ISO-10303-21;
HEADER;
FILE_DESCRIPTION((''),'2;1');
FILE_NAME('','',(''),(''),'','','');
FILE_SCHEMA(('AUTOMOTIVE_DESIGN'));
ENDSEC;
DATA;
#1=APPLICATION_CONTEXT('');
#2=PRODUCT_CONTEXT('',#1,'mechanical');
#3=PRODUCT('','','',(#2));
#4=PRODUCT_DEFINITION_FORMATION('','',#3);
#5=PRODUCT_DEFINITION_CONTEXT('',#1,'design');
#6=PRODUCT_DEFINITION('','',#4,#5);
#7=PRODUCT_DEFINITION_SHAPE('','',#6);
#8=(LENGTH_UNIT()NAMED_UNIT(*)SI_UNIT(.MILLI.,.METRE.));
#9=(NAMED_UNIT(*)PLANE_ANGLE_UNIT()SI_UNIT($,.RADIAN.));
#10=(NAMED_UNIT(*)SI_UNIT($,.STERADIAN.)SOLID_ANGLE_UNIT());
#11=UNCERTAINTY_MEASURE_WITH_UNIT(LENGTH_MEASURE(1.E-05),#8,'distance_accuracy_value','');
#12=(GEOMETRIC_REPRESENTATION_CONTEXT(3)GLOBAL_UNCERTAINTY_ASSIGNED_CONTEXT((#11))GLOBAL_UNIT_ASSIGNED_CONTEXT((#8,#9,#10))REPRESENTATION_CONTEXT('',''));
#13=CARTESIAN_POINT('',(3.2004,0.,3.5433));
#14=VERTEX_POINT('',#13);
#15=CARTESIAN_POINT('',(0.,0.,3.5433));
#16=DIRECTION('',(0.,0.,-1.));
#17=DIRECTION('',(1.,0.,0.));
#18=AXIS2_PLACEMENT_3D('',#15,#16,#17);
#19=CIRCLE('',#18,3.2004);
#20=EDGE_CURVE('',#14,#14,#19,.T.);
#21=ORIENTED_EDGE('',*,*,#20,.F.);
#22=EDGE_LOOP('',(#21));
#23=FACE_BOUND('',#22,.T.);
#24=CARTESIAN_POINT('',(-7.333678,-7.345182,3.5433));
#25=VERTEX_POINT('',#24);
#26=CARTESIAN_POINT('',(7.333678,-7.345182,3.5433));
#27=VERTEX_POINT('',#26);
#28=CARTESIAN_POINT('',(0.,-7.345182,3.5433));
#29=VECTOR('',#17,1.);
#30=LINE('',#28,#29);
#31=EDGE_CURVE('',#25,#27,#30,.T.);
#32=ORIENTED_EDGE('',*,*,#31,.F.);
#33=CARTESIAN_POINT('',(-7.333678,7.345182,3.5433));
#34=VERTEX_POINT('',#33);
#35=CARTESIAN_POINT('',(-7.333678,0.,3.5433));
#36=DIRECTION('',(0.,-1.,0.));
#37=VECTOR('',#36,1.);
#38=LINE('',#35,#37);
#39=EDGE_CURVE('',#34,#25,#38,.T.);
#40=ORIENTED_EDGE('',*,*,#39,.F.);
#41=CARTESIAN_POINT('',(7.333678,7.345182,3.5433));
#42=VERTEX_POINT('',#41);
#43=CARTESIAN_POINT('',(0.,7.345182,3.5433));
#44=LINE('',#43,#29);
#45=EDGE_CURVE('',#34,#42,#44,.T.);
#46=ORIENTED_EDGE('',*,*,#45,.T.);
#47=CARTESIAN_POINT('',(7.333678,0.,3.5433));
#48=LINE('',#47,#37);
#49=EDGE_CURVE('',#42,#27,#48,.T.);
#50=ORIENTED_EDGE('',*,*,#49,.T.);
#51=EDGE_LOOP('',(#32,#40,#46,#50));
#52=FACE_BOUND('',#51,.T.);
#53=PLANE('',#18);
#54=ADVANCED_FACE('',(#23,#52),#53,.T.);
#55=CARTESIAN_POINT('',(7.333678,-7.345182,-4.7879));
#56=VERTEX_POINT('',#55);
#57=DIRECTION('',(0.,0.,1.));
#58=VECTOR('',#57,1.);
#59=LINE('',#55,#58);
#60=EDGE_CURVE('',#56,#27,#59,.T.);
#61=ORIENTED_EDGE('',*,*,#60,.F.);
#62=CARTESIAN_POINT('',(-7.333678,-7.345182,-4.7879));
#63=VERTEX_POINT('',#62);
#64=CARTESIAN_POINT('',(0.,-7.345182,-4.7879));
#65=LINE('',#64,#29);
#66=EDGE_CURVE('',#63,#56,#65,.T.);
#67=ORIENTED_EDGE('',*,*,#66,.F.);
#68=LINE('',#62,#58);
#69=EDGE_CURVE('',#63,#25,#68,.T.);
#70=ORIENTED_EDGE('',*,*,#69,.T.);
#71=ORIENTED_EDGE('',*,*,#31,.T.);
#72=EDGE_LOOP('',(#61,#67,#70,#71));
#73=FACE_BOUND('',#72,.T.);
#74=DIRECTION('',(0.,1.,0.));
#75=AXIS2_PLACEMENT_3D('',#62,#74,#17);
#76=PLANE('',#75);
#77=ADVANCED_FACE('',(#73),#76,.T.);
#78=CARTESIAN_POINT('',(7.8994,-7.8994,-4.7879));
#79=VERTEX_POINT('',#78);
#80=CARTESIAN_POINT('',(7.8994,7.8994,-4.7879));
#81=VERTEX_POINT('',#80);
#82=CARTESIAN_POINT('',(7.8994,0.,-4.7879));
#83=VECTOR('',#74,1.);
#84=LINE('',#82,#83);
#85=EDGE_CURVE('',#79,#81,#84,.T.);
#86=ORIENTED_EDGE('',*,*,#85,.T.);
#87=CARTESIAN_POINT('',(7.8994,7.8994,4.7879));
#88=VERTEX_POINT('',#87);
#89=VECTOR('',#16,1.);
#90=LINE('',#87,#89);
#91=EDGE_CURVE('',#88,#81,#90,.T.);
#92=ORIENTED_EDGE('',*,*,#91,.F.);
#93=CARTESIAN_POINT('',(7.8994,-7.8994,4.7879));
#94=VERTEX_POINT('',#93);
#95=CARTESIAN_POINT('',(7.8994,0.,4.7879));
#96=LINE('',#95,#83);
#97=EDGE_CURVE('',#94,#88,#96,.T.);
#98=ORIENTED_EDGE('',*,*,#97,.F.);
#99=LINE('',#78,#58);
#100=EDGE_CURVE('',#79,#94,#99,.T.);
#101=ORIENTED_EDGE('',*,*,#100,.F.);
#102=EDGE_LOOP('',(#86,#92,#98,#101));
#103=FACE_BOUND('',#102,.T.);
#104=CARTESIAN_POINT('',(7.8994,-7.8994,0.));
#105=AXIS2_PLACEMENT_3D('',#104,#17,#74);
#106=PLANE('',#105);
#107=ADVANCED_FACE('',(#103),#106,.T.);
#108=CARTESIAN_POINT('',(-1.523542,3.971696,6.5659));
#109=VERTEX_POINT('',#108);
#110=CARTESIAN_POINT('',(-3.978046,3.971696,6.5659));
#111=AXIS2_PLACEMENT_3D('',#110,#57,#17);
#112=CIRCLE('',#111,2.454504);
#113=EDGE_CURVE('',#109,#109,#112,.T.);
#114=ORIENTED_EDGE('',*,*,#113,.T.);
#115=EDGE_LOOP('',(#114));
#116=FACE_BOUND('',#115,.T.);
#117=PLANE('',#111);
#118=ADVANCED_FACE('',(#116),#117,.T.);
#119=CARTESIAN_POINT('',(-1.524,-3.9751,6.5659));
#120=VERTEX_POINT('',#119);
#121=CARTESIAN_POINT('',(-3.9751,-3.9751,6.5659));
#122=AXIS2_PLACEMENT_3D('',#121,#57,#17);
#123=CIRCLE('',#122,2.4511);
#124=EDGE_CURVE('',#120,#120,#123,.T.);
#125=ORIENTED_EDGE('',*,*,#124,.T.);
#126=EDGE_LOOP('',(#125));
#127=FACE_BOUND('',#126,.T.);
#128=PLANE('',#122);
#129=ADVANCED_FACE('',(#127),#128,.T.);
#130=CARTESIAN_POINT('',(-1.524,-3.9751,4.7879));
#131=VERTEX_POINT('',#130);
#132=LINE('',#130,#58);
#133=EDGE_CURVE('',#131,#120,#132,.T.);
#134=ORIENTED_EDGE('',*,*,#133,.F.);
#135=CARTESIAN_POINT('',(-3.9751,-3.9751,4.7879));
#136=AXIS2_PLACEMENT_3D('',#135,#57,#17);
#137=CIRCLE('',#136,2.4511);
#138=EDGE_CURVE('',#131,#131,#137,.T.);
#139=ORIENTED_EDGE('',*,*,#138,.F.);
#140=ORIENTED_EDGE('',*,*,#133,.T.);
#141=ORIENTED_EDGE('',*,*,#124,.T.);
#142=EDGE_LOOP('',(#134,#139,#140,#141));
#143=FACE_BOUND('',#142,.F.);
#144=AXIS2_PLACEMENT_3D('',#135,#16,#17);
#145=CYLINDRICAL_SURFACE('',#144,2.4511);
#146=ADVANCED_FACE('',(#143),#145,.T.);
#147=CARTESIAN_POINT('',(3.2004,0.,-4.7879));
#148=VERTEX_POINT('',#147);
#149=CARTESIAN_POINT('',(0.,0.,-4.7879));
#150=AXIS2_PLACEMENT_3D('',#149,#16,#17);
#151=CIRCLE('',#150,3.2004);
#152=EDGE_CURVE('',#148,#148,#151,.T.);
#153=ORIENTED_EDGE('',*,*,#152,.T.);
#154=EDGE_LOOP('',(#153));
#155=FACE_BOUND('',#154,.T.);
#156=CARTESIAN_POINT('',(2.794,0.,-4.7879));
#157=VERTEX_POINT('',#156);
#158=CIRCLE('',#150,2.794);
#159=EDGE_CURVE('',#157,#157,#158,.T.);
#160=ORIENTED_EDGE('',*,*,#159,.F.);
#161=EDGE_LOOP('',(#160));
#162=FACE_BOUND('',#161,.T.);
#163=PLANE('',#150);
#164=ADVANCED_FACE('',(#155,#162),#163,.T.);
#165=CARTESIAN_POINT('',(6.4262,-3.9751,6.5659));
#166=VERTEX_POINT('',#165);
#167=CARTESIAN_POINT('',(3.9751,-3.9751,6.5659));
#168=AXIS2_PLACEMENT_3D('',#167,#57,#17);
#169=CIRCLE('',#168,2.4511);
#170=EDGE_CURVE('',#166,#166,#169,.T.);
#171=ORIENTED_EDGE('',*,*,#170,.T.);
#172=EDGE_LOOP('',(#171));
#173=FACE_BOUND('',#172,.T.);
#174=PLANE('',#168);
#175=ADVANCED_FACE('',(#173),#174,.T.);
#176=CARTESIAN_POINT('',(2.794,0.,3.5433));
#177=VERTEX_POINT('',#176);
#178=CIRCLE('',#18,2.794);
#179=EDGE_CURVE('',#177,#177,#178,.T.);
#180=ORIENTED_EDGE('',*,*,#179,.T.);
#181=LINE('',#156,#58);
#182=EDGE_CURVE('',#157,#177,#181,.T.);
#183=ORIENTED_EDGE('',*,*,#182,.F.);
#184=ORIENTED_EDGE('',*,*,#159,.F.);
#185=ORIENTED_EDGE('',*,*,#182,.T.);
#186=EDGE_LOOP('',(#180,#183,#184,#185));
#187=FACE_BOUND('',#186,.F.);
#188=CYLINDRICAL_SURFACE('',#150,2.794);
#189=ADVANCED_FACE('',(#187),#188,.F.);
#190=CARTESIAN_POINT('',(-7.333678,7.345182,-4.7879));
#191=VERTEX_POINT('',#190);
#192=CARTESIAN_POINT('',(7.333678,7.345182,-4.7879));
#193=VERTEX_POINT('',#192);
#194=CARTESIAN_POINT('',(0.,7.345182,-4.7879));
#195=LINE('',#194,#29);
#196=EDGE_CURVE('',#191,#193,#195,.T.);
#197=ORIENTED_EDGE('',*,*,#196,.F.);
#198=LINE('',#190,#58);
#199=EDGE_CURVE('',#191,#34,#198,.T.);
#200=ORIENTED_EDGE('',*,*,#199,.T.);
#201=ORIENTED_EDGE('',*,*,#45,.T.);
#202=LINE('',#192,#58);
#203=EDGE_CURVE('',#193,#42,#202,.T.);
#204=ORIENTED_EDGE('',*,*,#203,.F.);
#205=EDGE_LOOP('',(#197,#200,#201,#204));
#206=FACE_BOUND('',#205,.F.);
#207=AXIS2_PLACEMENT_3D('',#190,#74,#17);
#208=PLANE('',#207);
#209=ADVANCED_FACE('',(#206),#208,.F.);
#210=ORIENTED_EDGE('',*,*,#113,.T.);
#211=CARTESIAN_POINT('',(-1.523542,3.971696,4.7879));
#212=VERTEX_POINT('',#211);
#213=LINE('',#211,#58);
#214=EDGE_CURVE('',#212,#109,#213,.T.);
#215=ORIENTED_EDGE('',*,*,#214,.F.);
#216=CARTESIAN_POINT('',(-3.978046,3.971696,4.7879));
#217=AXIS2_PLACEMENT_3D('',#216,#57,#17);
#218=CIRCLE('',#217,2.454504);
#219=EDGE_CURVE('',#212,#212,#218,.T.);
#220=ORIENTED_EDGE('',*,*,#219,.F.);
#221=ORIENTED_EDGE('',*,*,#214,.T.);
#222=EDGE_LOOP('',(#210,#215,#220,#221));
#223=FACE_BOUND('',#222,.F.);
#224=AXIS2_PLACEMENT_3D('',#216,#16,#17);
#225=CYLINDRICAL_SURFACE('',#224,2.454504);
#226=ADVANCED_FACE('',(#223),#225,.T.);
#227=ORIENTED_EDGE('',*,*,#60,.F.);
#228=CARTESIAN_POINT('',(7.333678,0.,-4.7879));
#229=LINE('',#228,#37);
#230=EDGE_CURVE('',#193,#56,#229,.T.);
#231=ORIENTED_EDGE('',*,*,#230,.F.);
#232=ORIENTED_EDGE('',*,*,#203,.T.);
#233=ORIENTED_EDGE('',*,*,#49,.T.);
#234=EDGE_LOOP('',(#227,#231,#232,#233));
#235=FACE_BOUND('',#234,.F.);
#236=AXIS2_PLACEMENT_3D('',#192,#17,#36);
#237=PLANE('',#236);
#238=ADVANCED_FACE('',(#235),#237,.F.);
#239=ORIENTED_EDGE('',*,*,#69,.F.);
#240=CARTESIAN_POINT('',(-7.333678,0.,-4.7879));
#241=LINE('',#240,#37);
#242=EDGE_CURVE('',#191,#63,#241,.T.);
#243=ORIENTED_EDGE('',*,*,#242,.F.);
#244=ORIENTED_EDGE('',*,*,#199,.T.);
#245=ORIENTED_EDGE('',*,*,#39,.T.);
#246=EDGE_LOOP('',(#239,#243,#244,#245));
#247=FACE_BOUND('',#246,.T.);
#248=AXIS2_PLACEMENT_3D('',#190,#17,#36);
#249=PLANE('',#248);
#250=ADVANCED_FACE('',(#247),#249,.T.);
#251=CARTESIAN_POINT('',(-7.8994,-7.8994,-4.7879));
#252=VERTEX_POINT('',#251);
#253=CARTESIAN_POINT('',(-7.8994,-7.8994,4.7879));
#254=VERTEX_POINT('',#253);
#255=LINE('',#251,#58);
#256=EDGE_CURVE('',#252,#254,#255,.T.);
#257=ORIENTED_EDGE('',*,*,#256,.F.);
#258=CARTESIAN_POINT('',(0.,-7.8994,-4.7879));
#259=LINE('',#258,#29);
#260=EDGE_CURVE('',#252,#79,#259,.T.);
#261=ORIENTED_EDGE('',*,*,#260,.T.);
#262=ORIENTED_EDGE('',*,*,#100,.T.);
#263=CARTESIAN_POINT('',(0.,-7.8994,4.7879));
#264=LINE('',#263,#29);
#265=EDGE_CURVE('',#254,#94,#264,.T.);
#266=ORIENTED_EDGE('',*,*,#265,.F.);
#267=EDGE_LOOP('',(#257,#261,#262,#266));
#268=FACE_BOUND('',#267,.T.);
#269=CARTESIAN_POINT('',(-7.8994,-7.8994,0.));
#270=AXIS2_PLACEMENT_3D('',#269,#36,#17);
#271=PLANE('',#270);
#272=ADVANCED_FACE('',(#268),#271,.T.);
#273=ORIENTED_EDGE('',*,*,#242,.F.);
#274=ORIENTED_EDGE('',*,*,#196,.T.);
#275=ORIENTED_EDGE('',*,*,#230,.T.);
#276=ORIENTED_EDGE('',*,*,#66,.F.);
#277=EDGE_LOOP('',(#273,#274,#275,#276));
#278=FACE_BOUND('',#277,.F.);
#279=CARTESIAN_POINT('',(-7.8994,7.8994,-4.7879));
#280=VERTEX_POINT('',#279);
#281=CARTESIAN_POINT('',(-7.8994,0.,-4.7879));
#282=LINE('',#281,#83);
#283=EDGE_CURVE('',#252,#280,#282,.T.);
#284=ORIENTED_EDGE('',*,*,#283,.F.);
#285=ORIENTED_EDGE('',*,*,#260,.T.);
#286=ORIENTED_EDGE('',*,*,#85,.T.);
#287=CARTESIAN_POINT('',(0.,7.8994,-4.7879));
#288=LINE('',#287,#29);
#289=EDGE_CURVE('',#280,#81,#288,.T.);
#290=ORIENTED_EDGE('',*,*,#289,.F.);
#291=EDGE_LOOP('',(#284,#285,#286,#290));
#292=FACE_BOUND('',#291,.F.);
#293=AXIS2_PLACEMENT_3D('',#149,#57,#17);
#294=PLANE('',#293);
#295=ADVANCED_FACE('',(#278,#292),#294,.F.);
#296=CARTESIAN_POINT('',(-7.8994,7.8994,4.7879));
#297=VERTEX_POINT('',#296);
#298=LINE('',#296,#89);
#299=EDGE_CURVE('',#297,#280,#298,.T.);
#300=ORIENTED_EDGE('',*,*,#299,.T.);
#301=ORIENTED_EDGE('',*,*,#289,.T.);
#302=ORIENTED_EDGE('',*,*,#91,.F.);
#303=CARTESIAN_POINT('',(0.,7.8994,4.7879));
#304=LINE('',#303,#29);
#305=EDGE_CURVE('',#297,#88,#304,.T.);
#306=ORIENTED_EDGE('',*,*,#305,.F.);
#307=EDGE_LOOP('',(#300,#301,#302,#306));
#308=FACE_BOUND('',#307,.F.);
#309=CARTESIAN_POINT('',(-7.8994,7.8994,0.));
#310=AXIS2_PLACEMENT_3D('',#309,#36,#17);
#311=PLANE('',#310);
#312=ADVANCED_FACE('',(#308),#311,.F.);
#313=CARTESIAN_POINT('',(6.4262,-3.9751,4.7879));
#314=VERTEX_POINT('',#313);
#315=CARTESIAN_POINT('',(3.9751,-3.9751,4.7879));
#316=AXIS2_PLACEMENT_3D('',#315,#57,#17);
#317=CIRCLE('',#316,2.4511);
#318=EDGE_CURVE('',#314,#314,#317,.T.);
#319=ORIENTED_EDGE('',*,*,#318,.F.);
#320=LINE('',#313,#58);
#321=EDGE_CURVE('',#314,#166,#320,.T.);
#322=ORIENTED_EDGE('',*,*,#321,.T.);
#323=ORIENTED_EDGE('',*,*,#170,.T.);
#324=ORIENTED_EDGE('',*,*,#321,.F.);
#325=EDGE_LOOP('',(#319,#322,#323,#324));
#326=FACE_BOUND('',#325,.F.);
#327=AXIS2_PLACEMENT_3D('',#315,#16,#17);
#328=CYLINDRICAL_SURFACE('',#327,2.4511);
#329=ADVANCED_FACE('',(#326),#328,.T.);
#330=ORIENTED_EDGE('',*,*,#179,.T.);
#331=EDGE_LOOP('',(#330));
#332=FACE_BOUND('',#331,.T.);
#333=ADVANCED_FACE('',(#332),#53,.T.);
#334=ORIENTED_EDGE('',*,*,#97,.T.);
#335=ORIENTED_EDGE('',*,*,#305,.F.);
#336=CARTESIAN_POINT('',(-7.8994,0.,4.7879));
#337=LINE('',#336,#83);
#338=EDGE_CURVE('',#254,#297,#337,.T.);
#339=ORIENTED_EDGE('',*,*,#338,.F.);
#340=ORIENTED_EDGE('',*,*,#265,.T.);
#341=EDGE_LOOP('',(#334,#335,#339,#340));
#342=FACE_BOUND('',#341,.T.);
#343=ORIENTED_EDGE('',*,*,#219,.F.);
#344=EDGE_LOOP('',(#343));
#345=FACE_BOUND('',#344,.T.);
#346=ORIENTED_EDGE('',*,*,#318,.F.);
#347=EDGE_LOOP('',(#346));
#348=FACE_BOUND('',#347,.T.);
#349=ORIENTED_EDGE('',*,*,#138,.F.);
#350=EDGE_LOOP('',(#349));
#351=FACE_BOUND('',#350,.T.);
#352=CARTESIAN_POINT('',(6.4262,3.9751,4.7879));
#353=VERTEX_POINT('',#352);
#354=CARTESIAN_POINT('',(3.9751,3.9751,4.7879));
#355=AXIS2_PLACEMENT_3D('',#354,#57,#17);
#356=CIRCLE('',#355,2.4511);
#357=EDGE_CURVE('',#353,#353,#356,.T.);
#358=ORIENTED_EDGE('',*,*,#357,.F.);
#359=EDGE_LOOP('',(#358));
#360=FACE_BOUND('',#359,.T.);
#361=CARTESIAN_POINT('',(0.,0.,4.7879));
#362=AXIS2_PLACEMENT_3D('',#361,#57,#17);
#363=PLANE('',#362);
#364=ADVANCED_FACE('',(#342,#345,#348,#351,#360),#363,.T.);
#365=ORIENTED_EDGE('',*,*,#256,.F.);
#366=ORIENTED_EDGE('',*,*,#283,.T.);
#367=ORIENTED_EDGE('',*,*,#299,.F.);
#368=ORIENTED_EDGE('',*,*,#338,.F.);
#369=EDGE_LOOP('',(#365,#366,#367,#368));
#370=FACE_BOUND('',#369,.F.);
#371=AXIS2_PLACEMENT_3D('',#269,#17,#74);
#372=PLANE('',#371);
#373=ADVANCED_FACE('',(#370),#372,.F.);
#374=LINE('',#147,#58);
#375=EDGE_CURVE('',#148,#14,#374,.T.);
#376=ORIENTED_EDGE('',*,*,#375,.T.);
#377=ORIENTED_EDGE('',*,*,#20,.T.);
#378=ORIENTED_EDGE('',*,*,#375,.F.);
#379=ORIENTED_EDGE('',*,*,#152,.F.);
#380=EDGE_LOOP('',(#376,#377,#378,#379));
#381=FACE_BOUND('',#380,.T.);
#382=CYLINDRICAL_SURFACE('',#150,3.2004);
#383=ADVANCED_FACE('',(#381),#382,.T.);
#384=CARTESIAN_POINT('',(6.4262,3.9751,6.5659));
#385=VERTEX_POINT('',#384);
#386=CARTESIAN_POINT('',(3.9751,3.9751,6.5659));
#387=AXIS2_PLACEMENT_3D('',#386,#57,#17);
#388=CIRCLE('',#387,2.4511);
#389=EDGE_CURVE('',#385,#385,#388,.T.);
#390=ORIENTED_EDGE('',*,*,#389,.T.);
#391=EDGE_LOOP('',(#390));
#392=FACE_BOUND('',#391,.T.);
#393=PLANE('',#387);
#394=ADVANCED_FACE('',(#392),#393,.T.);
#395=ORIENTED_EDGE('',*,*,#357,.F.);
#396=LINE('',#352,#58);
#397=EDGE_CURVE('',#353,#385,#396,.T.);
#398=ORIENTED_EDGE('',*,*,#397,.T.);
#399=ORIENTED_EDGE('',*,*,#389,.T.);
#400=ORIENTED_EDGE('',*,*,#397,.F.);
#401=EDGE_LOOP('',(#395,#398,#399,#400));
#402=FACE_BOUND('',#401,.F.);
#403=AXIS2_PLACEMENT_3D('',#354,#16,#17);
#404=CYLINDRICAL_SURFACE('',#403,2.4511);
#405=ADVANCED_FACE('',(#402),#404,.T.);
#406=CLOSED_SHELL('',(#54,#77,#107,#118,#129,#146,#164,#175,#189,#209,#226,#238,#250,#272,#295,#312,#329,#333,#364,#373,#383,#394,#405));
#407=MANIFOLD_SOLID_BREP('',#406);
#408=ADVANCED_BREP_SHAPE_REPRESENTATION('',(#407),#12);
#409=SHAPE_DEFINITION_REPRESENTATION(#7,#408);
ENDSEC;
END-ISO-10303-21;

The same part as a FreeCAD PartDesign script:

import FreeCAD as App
import Part
import Sketcher
Q = App.Units.Quantity

doc = App.newDocument("Part")
body = doc.addObject("PartDesign::Body", "Body")

# Sketch on XY plane
sketch1 = body.newObject("Sketcher::SketchObject", "Sketch")
sketch1.AttachmentSupport = (doc.getObject("XY_Plane"), [""])
sketch1.MapMode = "FlatFace"
sketch1.addGeometry(Part.LineSegment(App.Vector(-8, 8, 0), App.Vector(-8, -8, 0)), False)
sketch1.addGeometry(Part.LineSegment(App.Vector(-8, -8, 0), App.Vector(8, -8, 0)), False)
sketch1.addGeometry(Part.LineSegment(App.Vector(8, -8, 0), App.Vector(8, 8, 0)), False)
sketch1.addGeometry(Part.LineSegment(App.Vector(8, 8, 0), App.Vector(-8, 8, 0)), False)
sketch1.addConstraint(Sketcher.Constraint("Coincident", 0, 2, 1, 1))
sketch1.addConstraint(Sketcher.Constraint("Coincident", 1, 2, 2, 1))
sketch1.addConstraint(Sketcher.Constraint("Coincident", 2, 2, 3, 1))
sketch1.addConstraint(Sketcher.Constraint("Coincident", 3, 2, 0, 1))
sketch1.addConstraint(Sketcher.Constraint("Vertical", 0))
sketch1.addConstraint(Sketcher.Constraint("Horizontal", 1))
sketch1.addConstraint(Sketcher.Constraint("Vertical", 2))
sketch1.addConstraint(Sketcher.Constraint("Horizontal", 3))
sketch1.addConstraint(Sketcher.Constraint("Symmetric", 0, 2, 2, 2, -1, 1))
sketch1.addConstraint(Sketcher.Constraint("Equal", 3, 0))
sketch1.addConstraint(Sketcher.Constraint("DistanceX", 1, 1, 1, 2, Q("0.622 in")))
pad1 = body.newObject("PartDesign::Pad", "Pad")
pad1.Profile = sketch1
pad1.Length = Q("0.377 in")
pad1.Midplane = True

# Sketch on XY plane
sketch2 = body.newObject("Sketcher::SketchObject", "Sketch001")
sketch2.AttachmentSupport = (doc.getObject("XY_Plane"), [""])
sketch2.MapMode = "FlatFace"
sketch2.AttachmentOffset = App.Placement(App.Vector(0, 0, 0.1885 * 25.4), App.Rotation())
sketch2.addGeometry(Part.Circle(App.Vector(-4, 4, 0), App.Vector(0, 0, 1), 2.5), False)
sketch2.addConstraint(Sketcher.Constraint("Diameter", 0, 4.909008))
sketch2.addConstraint(Sketcher.Constraint("DistanceX", 0, 3, -1, 1, 3.978046))
sketch2.addConstraint(Sketcher.Constraint("DistanceY", -1, 1, 0, 3, 3.971696))
pad2 = body.newObject("PartDesign::Pad", "Pad001")
pad2.Profile = sketch2
pad2.Length = Q("0.07 in")

# Sketch on XY plane
sketch3 = body.newObject("Sketcher::SketchObject", "Sketch002")
sketch3.AttachmentSupport = (doc.getObject("XY_Plane"), [""])
sketch3.MapMode = "FlatFace"
sketch3.AttachmentOffset = App.Placement(App.Vector(0, 0, 0.1885 * 25.4), App.Rotation())
sketch3.addGeometry(Part.Circle(App.Vector(4, 4, 0), App.Vector(0, 0, 1), 2.5), False)
sketch3.addConstraint(Sketcher.Constraint("Diameter", 0, Q("0.193 in")))
sketch3.addConstraint(Sketcher.Constraint("DistanceX", -1, 1, 0, 3, Q("0.1565 in")))
sketch3.addConstraint(Sketcher.Constraint("DistanceY", -1, 1, 0, 3, Q("0.1565 in")))
pad3 = body.newObject("PartDesign::Pad", "Pad002")
pad3.Profile = sketch3
pad3.Length = Q("0.07 in")

# Sketch on XY plane
sketch4 = body.newObject("Sketcher::SketchObject", "Sketch003")
sketch4.AttachmentSupport = (doc.getObject("XY_Plane"), [""])
sketch4.MapMode = "FlatFace"
sketch4.AttachmentOffset = App.Placement(App.Vector(0, 0, 0.1885 * 25.4), App.Rotation())
sketch4.addGeometry(Part.Circle(App.Vector(-4, -4, 0), App.Vector(0, 0, 1), 2.5), False)
sketch4.addConstraint(Sketcher.Constraint("Diameter", 0, Q("0.193 in")))
sketch4.addConstraint(Sketcher.Constraint("DistanceX", 0, 3, -1, 1, Q("0.1565 in")))
sketch4.addConstraint(Sketcher.Constraint("DistanceY", 0, 3, -1, 1, Q("0.1565 in")))
pad4 = body.newObject("PartDesign::Pad", "Pad003")
pad4.Profile = sketch4
pad4.Length = Q("0.07 in")

# Sketch on XY plane
sketch5 = body.newObject("Sketcher::SketchObject", "Sketch004")
sketch5.AttachmentSupport = (doc.getObject("XY_Plane"), [""])
sketch5.MapMode = "FlatFace"
sketch5.AttachmentOffset = App.Placement(App.Vector(0, 0, 0.1885 * 25.4), App.Rotation())
sketch5.addGeometry(Part.Circle(App.Vector(4, -4, 0), App.Vector(0, 0, 1), 2.5), False)
sketch5.addConstraint(Sketcher.Constraint("Diameter", 0, Q("0.193 in")))
sketch5.addConstraint(Sketcher.Constraint("DistanceX", -1, 1, 0, 3, Q("0.1565 in")))
sketch5.addConstraint(Sketcher.Constraint("DistanceY", 0, 3, -1, 1, Q("0.1565 in")))
pad5 = body.newObject("PartDesign::Pad", "Pad004")
pad5.Profile = sketch5
pad5.Length = Q("0.07 in")

# Sketch on XY plane
sketch6 = body.newObject("Sketcher::SketchObject", "Sketch005")
sketch6.AttachmentSupport = (doc.getObject("XY_Plane"), [""])
sketch6.MapMode = "FlatFace"
sketch6.AttachmentOffset = App.Placement(App.Vector(0, 0, -0.1885 * 25.4), App.Rotation())
sketch6.addGeometry(Part.LineSegment(App.Vector(-7, -7, 0), App.Vector(-7, 7, 0)), False)
sketch6.addGeometry(Part.LineSegment(App.Vector(-7, 7, 0), App.Vector(7, 7, 0)), False)
sketch6.addGeometry(Part.LineSegment(App.Vector(7, 7, 0), App.Vector(7, -7, 0)), False)
sketch6.addGeometry(Part.LineSegment(App.Vector(7, -7, 0), App.Vector(-7, -7, 0)), False)
sketch6.addConstraint(Sketcher.Constraint("Coincident", 0, 2, 1, 1))
sketch6.addConstraint(Sketcher.Constraint("Coincident", 1, 2, 2, 1))
sketch6.addConstraint(Sketcher.Constraint("Coincident", 2, 2, 3, 1))
sketch6.addConstraint(Sketcher.Constraint("Coincident", 3, 2, 0, 1))
sketch6.addConstraint(Sketcher.Constraint("Vertical", 0))
sketch6.addConstraint(Sketcher.Constraint("Horizontal", 1))
sketch6.addConstraint(Sketcher.Constraint("Vertical", 2))
sketch6.addConstraint(Sketcher.Constraint("Horizontal", 3))
sketch6.addConstraint(Sketcher.Constraint("Symmetric", 0, 2, 2, 2, -1, 1))
sketch6.addConstraint(Sketcher.Constraint("DistanceX", 1, 1, 1, 2, 14.667356))
sketch6.addConstraint(Sketcher.Constraint("DistanceY", 0, 1, 0, 2, 14.690364))
pocket1 = body.newObject("PartDesign::Pocket", "Pocket")
pocket1.Profile = sketch6
pocket1.Length = Q("0.328 in")
pocket1.Reversed = True

# Sketch on XY plane
sketch7 = body.newObject("Sketcher::SketchObject", "Sketch006")
sketch7.AttachmentSupport = (doc.getObject("XY_Plane"), [""])
sketch7.MapMode = "FlatFace"
sketch7.AttachmentOffset = App.Placement(App.Vector(0, 0, -0.1885 * 25.4), App.Rotation())
sketch7.addGeometry(Part.Circle(App.Vector(0, 0, 0), App.Vector(0, 0, 1), 3.2), False)
sketch7.addConstraint(Sketcher.Constraint("Coincident", 0, 3, -1, 1))
sketch7.addConstraint(Sketcher.Constraint("Diameter", 0, Q("0.252 in")))
pad6 = body.newObject("PartDesign::Pad", "Pad005")
pad6.Profile = sketch7
pad6.Length = Q("0.328 in")

# Sketch on XY plane
sketch8 = body.newObject("Sketcher::SketchObject", "Sketch007")
sketch8.AttachmentSupport = (doc.getObject("XY_Plane"), [""])
sketch8.MapMode = "FlatFace"
sketch8.AttachmentOffset = App.Placement(App.Vector(0, 0, -0.1885 * 25.4), App.Rotation())
sketch8.addGeometry(Part.Circle(App.Vector(0, 0, 0), App.Vector(0, 0, 1), 2.8), False)
sketch8.addConstraint(Sketcher.Constraint("Coincident", 0, 3, -1, 1))
sketch8.addConstraint(Sketcher.Constraint("Diameter", 0, Q("0.22 in")))
pocket2 = body.newObject("PartDesign::Pocket", "Pocket001")
pocket2.Profile = sketch8
pocket2.Length = Q("0.328 in")
pocket2.Reversed = True

doc.recompute()
